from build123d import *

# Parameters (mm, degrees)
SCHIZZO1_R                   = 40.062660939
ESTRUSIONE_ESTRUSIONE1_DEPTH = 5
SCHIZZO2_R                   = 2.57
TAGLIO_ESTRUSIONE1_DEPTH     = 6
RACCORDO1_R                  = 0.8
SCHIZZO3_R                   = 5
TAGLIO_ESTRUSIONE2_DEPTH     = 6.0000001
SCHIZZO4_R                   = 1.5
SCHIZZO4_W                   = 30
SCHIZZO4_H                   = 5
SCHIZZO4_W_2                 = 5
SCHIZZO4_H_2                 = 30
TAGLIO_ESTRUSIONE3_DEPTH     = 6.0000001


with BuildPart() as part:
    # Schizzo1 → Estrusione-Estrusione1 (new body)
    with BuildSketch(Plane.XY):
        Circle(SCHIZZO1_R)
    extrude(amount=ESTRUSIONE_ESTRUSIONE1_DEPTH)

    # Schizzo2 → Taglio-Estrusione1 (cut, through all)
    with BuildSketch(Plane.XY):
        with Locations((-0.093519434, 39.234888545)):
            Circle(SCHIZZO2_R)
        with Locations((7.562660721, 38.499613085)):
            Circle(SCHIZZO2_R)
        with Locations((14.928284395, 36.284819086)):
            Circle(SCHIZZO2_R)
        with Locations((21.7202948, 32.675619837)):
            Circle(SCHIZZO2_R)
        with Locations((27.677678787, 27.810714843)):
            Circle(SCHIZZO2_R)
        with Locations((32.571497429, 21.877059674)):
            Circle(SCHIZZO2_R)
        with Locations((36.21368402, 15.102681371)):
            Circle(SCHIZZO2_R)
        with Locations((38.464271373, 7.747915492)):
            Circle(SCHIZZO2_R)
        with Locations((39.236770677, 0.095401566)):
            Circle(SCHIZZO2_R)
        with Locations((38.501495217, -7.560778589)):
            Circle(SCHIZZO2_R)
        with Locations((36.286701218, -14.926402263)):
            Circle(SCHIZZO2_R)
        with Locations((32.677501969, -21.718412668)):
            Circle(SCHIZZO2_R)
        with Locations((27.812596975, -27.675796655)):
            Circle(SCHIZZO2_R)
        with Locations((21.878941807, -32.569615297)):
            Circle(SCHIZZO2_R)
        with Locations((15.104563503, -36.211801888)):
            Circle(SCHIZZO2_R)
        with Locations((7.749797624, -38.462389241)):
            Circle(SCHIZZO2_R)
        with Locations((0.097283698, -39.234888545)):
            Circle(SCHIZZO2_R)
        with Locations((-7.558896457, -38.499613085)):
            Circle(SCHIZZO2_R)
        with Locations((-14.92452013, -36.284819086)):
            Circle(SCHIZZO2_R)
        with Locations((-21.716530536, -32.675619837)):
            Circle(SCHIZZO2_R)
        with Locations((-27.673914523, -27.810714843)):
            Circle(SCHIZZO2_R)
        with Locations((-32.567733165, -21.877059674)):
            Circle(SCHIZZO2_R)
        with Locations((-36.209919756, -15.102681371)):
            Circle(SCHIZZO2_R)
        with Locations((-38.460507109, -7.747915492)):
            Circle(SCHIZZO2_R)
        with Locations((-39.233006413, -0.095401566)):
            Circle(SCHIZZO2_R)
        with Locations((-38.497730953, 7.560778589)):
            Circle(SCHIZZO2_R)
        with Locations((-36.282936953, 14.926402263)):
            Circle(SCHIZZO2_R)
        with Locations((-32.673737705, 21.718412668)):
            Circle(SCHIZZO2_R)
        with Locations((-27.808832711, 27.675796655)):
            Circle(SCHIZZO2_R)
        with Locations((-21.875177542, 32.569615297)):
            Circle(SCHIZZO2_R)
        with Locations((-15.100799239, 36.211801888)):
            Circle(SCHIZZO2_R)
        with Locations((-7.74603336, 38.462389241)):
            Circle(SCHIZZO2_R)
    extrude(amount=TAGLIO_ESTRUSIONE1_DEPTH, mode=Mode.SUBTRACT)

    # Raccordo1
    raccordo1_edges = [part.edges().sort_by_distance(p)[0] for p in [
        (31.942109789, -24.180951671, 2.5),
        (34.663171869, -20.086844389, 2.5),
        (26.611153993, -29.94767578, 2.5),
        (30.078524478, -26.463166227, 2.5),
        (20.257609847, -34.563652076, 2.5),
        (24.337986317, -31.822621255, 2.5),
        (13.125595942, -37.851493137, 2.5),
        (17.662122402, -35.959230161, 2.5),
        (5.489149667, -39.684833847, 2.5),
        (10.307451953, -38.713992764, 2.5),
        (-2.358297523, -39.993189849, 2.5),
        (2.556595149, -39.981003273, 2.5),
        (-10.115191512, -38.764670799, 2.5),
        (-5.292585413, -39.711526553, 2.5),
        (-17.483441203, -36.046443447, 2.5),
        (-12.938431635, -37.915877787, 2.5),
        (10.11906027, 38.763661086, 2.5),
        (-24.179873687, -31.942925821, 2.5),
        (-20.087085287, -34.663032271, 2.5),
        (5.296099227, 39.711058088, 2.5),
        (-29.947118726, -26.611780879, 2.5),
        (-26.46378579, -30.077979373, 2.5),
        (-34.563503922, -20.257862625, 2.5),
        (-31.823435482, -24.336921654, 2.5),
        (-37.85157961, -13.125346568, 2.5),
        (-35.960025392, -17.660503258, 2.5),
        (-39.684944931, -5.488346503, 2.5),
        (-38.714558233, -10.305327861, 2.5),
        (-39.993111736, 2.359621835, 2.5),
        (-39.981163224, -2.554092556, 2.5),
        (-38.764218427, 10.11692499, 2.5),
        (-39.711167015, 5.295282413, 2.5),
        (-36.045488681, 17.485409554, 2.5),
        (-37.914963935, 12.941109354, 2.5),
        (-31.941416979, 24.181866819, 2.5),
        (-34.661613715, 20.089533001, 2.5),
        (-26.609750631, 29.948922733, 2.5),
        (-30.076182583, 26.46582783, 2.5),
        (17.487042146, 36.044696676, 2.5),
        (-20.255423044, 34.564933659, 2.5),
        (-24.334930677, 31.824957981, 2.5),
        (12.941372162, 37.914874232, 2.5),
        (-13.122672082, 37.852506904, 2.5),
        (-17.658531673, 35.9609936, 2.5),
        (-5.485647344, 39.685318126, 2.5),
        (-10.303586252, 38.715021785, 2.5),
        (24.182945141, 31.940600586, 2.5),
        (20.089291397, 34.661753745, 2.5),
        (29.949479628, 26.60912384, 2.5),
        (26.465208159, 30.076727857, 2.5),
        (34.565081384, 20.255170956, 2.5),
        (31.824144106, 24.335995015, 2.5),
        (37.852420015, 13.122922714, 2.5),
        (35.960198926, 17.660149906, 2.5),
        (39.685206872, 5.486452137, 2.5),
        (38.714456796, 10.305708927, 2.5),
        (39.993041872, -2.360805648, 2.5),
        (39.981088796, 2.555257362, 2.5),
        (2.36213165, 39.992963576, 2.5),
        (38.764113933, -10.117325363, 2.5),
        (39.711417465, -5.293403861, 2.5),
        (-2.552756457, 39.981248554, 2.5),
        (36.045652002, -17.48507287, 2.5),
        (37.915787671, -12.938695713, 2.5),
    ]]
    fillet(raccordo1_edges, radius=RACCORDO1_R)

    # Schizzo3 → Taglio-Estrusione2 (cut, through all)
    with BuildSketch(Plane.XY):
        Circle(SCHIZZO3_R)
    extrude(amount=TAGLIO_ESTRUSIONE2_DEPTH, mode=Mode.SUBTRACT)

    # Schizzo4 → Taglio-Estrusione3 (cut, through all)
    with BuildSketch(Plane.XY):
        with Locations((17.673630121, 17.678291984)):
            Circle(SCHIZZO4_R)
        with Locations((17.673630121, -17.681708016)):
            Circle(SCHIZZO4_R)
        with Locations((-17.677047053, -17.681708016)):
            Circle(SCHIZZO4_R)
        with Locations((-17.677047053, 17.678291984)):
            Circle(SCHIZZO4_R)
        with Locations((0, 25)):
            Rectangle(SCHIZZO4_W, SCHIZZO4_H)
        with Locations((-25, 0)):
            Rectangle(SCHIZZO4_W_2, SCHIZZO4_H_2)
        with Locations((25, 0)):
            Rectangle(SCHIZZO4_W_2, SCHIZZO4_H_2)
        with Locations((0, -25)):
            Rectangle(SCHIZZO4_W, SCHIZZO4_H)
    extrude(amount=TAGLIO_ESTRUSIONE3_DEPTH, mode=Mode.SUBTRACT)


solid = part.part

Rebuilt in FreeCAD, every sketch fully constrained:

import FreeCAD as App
import Part
import Sketcher

V = App.Vector
Q = App.Units.Quantity


def edges_at(feature, points):
    """Names of the edges that pass closest to the given points."""
    edges = feature.Shape.Edges
    near = lambda p: min(range(len(edges)), key=lambda i: edges[i].distToShape(Part.Vertex(*p))[0])
    return sorted({f"Edge{near(p) + 1}" for p in points})

doc = App.newDocument("Part")
params = doc.addObject("Spreadsheet::Sheet", "Params")
for row, (alias, value) in enumerate([
    ("pad1_length", "5 mm"),
    ("sketch2_diameter", "5.14 mm"),
    ("fillet_radius", "0.8 mm"),
    ("sketch3_diameter", "10 mm"),
    ("sketch4_diameter", "3 mm"),
    ("sketch4_width", "30 mm"),
    ("sketch4_width2", "5 mm"),
], start=1):
    params.set(f"A{row}", alias)
    params.set(f"B{row}", "=" + value)
    params.setAlias(f"B{row}", alias)

body = doc.addObject("PartDesign::Body", "Body")

# Sketch on XY plane
sketch1 = doc.addObject("Sketcher::SketchObject", "Sketch")
body.addObject(sketch1)
sketch1.AttachmentSupport = (doc.XY_Plane, [""])
sketch1.MapMode = "FlatFace"
sketch1.addGeometry(Part.Circle(V(0, 0, 0), V(0, 0, 1), 40.062661), False)
sketch1.addConstraint([
    Sketcher.Constraint("Coincident", 0, 3, -1, 1),
    Sketcher.Constraint("Diameter", 0, Q("80.125322 mm")),
])
pad1 = doc.addObject("PartDesign::Pad", "Pad")
body.addObject(pad1)
pad1.Profile = sketch1
pad1.setExpression("Length", "Params.pad1_length")

# Sketch on XY plane
sketch2 = doc.addObject("Sketcher::SketchObject", "Sketch001")
body.addObject(sketch2)
sketch2.AttachmentSupport = (doc.XY_Plane, [""])
sketch2.MapMode = "FlatFace"
sketch2.addGeometry([
    Part.Circle(V(-0.093519, 39.234889, 0), V(0, 0, 1), 2.57),  # 0
    Part.Circle(V(7.562661, 38.499613, 0), V(0, 0, 1), 2.57),  # 1
    Part.Circle(V(14.928284, 36.284819, 0), V(0, 0, 1), 2.57),  # 2
    Part.Circle(V(21.720295, 32.67562, 0), V(0, 0, 1), 2.57),  # 3
    Part.Circle(V(27.677679, 27.810715, 0), V(0, 0, 1), 2.57),  # 4
    Part.Circle(V(32.571497, 21.87706, 0), V(0, 0, 1), 2.57),  # 5
    Part.Circle(V(36.213684, 15.102681, 0), V(0, 0, 1), 2.57),  # 6
    Part.Circle(V(38.464271, 7.747915, 0), V(0, 0, 1), 2.57),  # 7
    Part.Circle(V(39.236771, 0.095402, 0), V(0, 0, 1), 2.57),  # 8
    Part.Circle(V(38.501495, -7.560779, 0), V(0, 0, 1), 2.57),  # 9
    Part.Circle(V(36.286701, -14.926402, 0), V(0, 0, 1), 2.57),  # 10
    Part.Circle(V(32.677502, -21.718413, 0), V(0, 0, 1), 2.57),  # 11
    Part.Circle(V(27.812597, -27.675797, 0), V(0, 0, 1), 2.57),  # 12
    Part.Circle(V(21.878942, -32.569615, 0), V(0, 0, 1), 2.57),  # 13
    Part.Circle(V(15.104564, -36.211802, 0), V(0, 0, 1), 2.57),  # 14
    Part.Circle(V(7.749798, -38.462389, 0), V(0, 0, 1), 2.57),  # 15
    Part.Circle(V(0.097284, -39.234889, 0), V(0, 0, 1), 2.57),  # 16
    Part.Circle(V(-7.558896, -38.499613, 0), V(0, 0, 1), 2.57),  # 17
    Part.Circle(V(-14.92452, -36.284819, 0), V(0, 0, 1), 2.57),  # 18
    Part.Circle(V(-21.716531, -32.67562, 0), V(0, 0, 1), 2.57),  # 19
    Part.Circle(V(-27.673915, -27.810715, 0), V(0, 0, 1), 2.57),  # 20
    Part.Circle(V(-32.567733, -21.87706, 0), V(0, 0, 1), 2.57),  # 21
    Part.Circle(V(-36.20992, -15.102681, 0), V(0, 0, 1), 2.57),  # 22
    Part.Circle(V(-38.460507, -7.747915, 0), V(0, 0, 1), 2.57),  # 23
    Part.Circle(V(-39.233006, -0.095402, 0), V(0, 0, 1), 2.57),  # 24
    Part.Circle(V(-38.497731, 7.560779, 0), V(0, 0, 1), 2.57),  # 25
    Part.Circle(V(-36.282937, 14.926402, 0), V(0, 0, 1), 2.57),  # 26
    Part.Circle(V(-32.673738, 21.718413, 0), V(0, 0, 1), 2.57),  # 27
    Part.Circle(V(-27.808833, 27.675797, 0), V(0, 0, 1), 2.57),  # 28
    Part.Circle(V(-21.875178, 32.569615, 0), V(0, 0, 1), 2.57),  # 29
    Part.Circle(V(-15.100799, 36.211802, 0), V(0, 0, 1), 2.57),  # 30
    Part.Circle(V(-7.746033, 38.462389, 0), V(0, 0, 1), 2.57),  # 31
], False)
sketch2.addConstraint([
    Sketcher.Constraint("Equal", 0, 1),
    Sketcher.Constraint("Equal", 1, 2),
    Sketcher.Constraint("Equal", 2, 3),
    Sketcher.Constraint("Equal", 3, 4),
    Sketcher.Constraint("Equal", 4, 5),
    Sketcher.Constraint("Equal", 5, 6),
    Sketcher.Constraint("Equal", 6, 7),
    Sketcher.Constraint("Equal", 7, 8),
    Sketcher.Constraint("Equal", 8, 9),
    Sketcher.Constraint("Equal", 9, 10),
    Sketcher.Constraint("Equal", 10, 11),
    Sketcher.Constraint("Equal", 11, 12),
    Sketcher.Constraint("Equal", 12, 13),
    Sketcher.Constraint("Equal", 13, 14),
    Sketcher.Constraint("Equal", 14, 15),
    Sketcher.Constraint("Equal", 15, 16),
    Sketcher.Constraint("Equal", 16, 17),
    Sketcher.Constraint("Equal", 17, 18),
    Sketcher.Constraint("Equal", 18, 19),
    Sketcher.Constraint("Equal", 19, 20),
    Sketcher.Constraint("Equal", 20, 21),
    Sketcher.Constraint("Equal", 21, 22),
    Sketcher.Constraint("Equal", 22, 23),
    Sketcher.Constraint("Equal", 23, 24),
    Sketcher.Constraint("Equal", 24, 25),
    Sketcher.Constraint("Equal", 25, 26),
    Sketcher.Constraint("Equal", 26, 27),
    Sketcher.Constraint("Equal", 27, 28),
    Sketcher.Constraint("Equal", 28, 29),
    Sketcher.Constraint("Equal", 29, 30),
    Sketcher.Constraint("Equal", 30, 31),
    Sketcher.Constraint("Diameter", 0, Q("5.14 mm")),
    Sketcher.Constraint("DistanceY", -1, 1, 8, 3, Q("0.095402 mm")),
    Sketcher.Constraint("DistanceX", -1, 1, 10, 3, Q("36.286701 mm")),
    Sketcher.Constraint("DistanceX", -1, 1, 11, 3, Q("32.677502 mm")),
    Sketcher.Constraint("DistanceY", 14, 3, -1, 1, Q("36.211802 mm")),
    Sketcher.Constraint("DistanceY", 24, 3, -1, 1, Q("0.095402 mm")),
    Sketcher.Constraint("DistanceX", 30, 3, -1, 1, Q("15.100799 mm")),
    Sketcher.Constraint("DistanceY", -1, 1, 30, 3, Q("36.211802 mm")),
    Sketcher.Constraint("DistanceY", 3, 3, 2, 3, Q("3.609199 mm")),
    Sketcher.Constraint("DistanceY", 4, 3, 1, 3, Q("10.688898 mm")),
    Sketcher.Constraint("DistanceX", 0, 3, 4, 3, Q("27.771198 mm")),
    Sketcher.Constraint("DistanceX", 2, 3, 6, 3, Q("21.2854 mm")),
    Sketcher.Constraint("DistanceY", 7, 3, 4, 3, Q("20.062799 mm")),
    Sketcher.Constraint("DistanceX", 7, 3, 8, 3, Q("0.772499 mm")),
    Sketcher.Constraint("DistanceX", 12, 3, 9, 3, Q("10.688898 mm")),
    Sketcher.Constraint("DistanceY", 12, 3, 8, 3, Q("27.771198 mm")),
    Sketcher.Constraint("DistanceY", 14, 3, 10, 3, Q("21.2854 mm")),
    Sketcher.Constraint("DistanceX", 15, 3, 12, 3, Q("20.062799 mm")),
    Sketcher.Constraint("DistanceY", 16, 3, 15, 3, Q("0.772499 mm")),
    Sketcher.Constraint("DistanceY", 18, 3, 19, 3, Q("3.609199 mm")),
    Sketcher.Constraint("DistanceY", 17, 3, 20, 3, Q("10.688898 mm")),
    Sketcher.Constraint("DistanceX", 20, 3, 16, 3, Q("27.771198 mm")),
    Sketcher.Constraint("DistanceX", 22, 3, 18, 3, Q("21.2854 mm")),
    Sketcher.Constraint("DistanceY", 20, 3, 23, 3, Q("20.062799 mm")),
    Sketcher.Constraint("DistanceX", 24, 3, 23, 3, Q("0.772499 mm")),
    Sketcher.Constraint("DistanceX", 26, 3, 27, 3, Q("3.609199 mm")),
    Sketcher.Constraint("DistanceX", 25, 3, 28, 3, Q("10.688898 mm")),
    Sketcher.Constraint("DistanceY", 24, 3, 28, 3, Q("27.771198 mm")),
    Sketcher.Constraint("DistanceY", 31, 3, 0, 3, Q("0.772499 mm")),
    Sketcher.Constraint("DistanceX", 28, 3, 31, 3, Q("20.062799 mm")),
    Sketcher.Constraint("DistanceX", 0, 3, -1, 1, Q("0.093519 mm")),
    Sketcher.Constraint("DistanceY", -1, 1, 0, 3, Q("39.234889 mm")),
    Sketcher.Constraint("DistanceX", -1, 1, 1, 3, Q("7.562661 mm")),
    Sketcher.Constraint("DistanceY", -1, 1, 2, 3, Q("36.284819 mm")),
    Sketcher.Constraint("DistanceY", -1, 1, 5, 3, Q("21.87706 mm")),
    Sketcher.Constraint("DistanceY", -1, 1, 6, 3, Q("15.102681 mm")),
    Sketcher.Constraint("DistanceX", -1, 1, 7, 3, Q("38.464271 mm")),
    Sketcher.Constraint("DistanceY", 9, 3, -1, 1, Q("7.560779 mm")),
    Sketcher.Constraint("DistanceX", -1, 1, 13, 3, Q("21.878942 mm")),
    Sketcher.Constraint("DistanceY", 15, 3, -1, 1, Q("38.462389 mm")),
    Sketcher.Constraint("DistanceX", 18, 3, -1, 1, Q("14.92452 mm")),
    Sketcher.Constraint("DistanceY", 18, 3, -1, 1, Q("36.284819 mm")),
    Sketcher.Constraint("DistanceX", 19, 3, -1, 1, Q("21.716531 mm")),
    Sketcher.Constraint("DistanceY", 21, 3, -1, 1, Q("21.87706 mm")),
    Sketcher.Constraint("DistanceY", 22, 3, -1, 1, Q("15.102681 mm")),
    Sketcher.Constraint("DistanceX", 25, 3, -1, 1, Q("38.497731 mm")),
    Sketcher.Constraint("DistanceY", -1, 1, 25, 3, Q("7.560779 mm")),
    Sketcher.Constraint("DistanceX", 2, 3, 3, 3, Q("6.79201 mm")),
    Sketcher.Constraint("DistanceX", 4, 3, 5, 3, Q("4.893819 mm")),
    Sketcher.Constraint("DistanceY", 6, 3, 1, 3, Q("23.396932 mm")),
    Sketcher.Constraint("DistanceX", 6, 3, 9, 3, Q("2.287811 mm")),
    Sketcher.Constraint("DistanceY", 11, 3, 10, 3, Q("6.79201 mm")),
    Sketcher.Constraint("DistanceY", 13, 3, 12, 3, Q("4.893819 mm")),
    Sketcher.Constraint("DistanceX", 14, 3, 13, 3, Q("6.774378 mm")),
    Sketcher.Constraint("DistanceX", 14, 3, 9, 3, Q("23.396932 mm")),
    Sketcher.Constraint("DistanceX", 16, 3, 14, 3, Q("15.00728 mm")),
    Sketcher.Constraint("DistanceX", 17, 3, 16, 3, Q("7.65618 mm")),
    Sketcher.Constraint("DistanceY", 17, 3, 14, 3, Q("2.287811 mm")),
    Sketcher.Constraint("DistanceX", 21, 3, 20, 3, Q("4.893819 mm")),
    Sketcher.Constraint("DistanceX", 24, 3, 20, 3, Q("11.559092 mm")),
    Sketcher.Constraint("DistanceX", 24, 3, 26, 3, Q("2.950069 mm")),
    Sketcher.Constraint("DistanceY", 21, 3, 26, 3, Q("36.803462 mm")),
    Sketcher.Constraint("DistanceY", 26, 3, 27, 3, Q("6.79201 mm")),
    Sketcher.Constraint("DistanceY", 28, 3, 29, 3, Q("4.893819 mm")),
    Sketcher.Constraint("DistanceX", 27, 3, 29, 3, Q("10.79856 mm")),
])
sketch2.setExpression("Constraints[31]", "Params.sketch2_diameter")
pocket1 = doc.addObject("PartDesign::Pocket", "Pocket")
body.addObject(pocket1)
pocket1.Profile = sketch2
pocket1.Type = "ThroughAll"
pocket1.Reversed = True
doc.recompute()

fillet = doc.addObject("PartDesign::Fillet", "Fillet")
body.addObject(fillet)
fillet.Base = (pocket1, edges_at(pocket1, [
    (31.942, -24.181, 2.5),
    (34.663, -20.087, 2.5),
    (26.611, -29.948, 2.5),
    (30.079, -26.463, 2.5),
    (20.258, -34.564, 2.5),
    (24.338, -31.823, 2.5),
    (13.126, -37.851, 2.5),
    (17.662, -35.959, 2.5),
    (5.489, -39.685, 2.5),
    (10.307, -38.714, 2.5),
    (-2.358, -39.993, 2.5),
    (2.557, -39.981, 2.5),
    (-10.115, -38.765, 2.5),
    (-5.293, -39.712, 2.5),
    (-17.483, -36.046, 2.5),
    (-12.938, -37.916, 2.5),
    (10.119, 38.764, 2.5),
    (-24.18, -31.943, 2.5),
    (-20.087, -34.663, 2.5),
    (5.296, 39.711, 2.5),
    (-29.947, -26.612, 2.5),
    (-26.464, -30.078, 2.5),
    (-34.564, -20.258, 2.5),
    (-31.823, -24.337, 2.5),
    (-37.852, -13.125, 2.5),
    (-35.96, -17.661, 2.5),
    (-39.685, -5.488, 2.5),
    (-38.715, -10.305, 2.5),
    (-39.993, 2.36, 2.5),
    (-39.981, -2.554, 2.5),
    (-38.764, 10.117, 2.5),
    (-39.711, 5.295, 2.5),
    (-36.045, 17.485, 2.5),
    (-37.915, 12.941, 2.5),
    (-31.941, 24.182, 2.5),
    (-34.662, 20.09, 2.5),
    (-26.61, 29.949, 2.5),
    (-30.076, 26.466, 2.5),
    (17.487, 36.045, 2.5),
    (-20.255, 34.565, 2.5),
    (-24.335, 31.825, 2.5),
    (12.941, 37.915, 2.5),
    (-13.123, 37.853, 2.5),
    (-17.659, 35.961, 2.5),
    (-5.486, 39.685, 2.5),
    (-10.304, 38.715, 2.5),
    (24.183, 31.941, 2.5),
    (20.089, 34.662, 2.5),
    (29.949, 26.609, 2.5),
    (26.465, 30.077, 2.5),
    (34.565, 20.255, 2.5),
    (31.824, 24.336, 2.5),
    (37.852, 13.123, 2.5),
    (35.96, 17.66, 2.5),
    (39.685, 5.486, 2.5),
    (38.714, 10.306, 2.5),
    (39.993, -2.361, 2.5),
    (39.981, 2.555, 2.5),
    (2.362, 39.993, 2.5),
    (38.764, -10.117, 2.5),
    (39.711, -5.293, 2.5),
    (-2.553, 39.981, 2.5),
    (36.046, -17.485, 2.5),
    (37.916, -12.939, 2.5),
]))
fillet.setExpression("Radius", "Params.fillet_radius")

# Sketch on XY plane
sketch3 = doc.addObject("Sketcher::SketchObject", "Sketch002")
body.addObject(sketch3)
sketch3.AttachmentSupport = (doc.XY_Plane, [""])
sketch3.MapMode = "FlatFace"
sketch3.addGeometry(Part.Circle(V(0, 0, 0), V(0, 0, 1), 5), False)
sketch3.addConstraint([
    Sketcher.Constraint("Coincident", 0, 3, -1, 1),
    Sketcher.Constraint("Diameter", 0, Q("10 mm")),
])
sketch3.setExpression("Constraints[1]", "Params.sketch3_diameter")
pocket2 = doc.addObject("PartDesign::Pocket", "Pocket001")
body.addObject(pocket2)
pocket2.Profile = sketch3
pocket2.Type = "ThroughAll"
pocket2.Reversed = True

# Sketch on XY plane
sketch4 = doc.addObject("Sketcher::SketchObject", "Sketch003")
body.addObject(sketch4)
sketch4.AttachmentSupport = (doc.XY_Plane, [""])
sketch4.MapMode = "FlatFace"
sketch4.addGeometry([
    Part.Circle(V(17.67363, 17.678292, 0), V(0, 0, 1), 1.5),  # 0
    Part.Circle(V(17.67363, -17.681708, 0), V(0, 0, 1), 1.5),  # 1
    Part.Circle(V(-17.677047, -17.681708, 0), V(0, 0, 1), 1.5),  # 2
    Part.Circle(V(-17.677047, 17.678292, 0), V(0, 0, 1), 1.5),  # 3
    Part.LineSegment(V(-15, 27.5, 0), V(-15, 22.5, 0)),  # 4
    Part.LineSegment(V(-15, 22.5, 0), V(15, 22.5, 0)),  # 5
    Part.LineSegment(V(15, 22.5, 0), V(15, 27.5, 0)),  # 6
    Part.LineSegment(V(15, 27.5, 0), V(-15, 27.5, 0)),  # 7
    Part.LineSegment(V(-27.5, 15, 0), V(-27.5, -15, 0)),  # 8
    Part.LineSegment(V(-27.5, -15, 0), V(-22.5, -15, 0)),  # 9
    Part.LineSegment(V(-22.5, -15, 0), V(-22.5, 15, 0)),  # 10
    Part.LineSegment(V(-22.5, 15, 0), V(-27.5, 15, 0)),  # 11
    Part.LineSegment(V(22.5, 15, 0), V(22.5, -15, 0)),  # 12
    Part.LineSegment(V(22.5, -15, 0), V(27.5, -15, 0)),  # 13
    Part.LineSegment(V(27.5, -15, 0), V(27.5, 15, 0)),  # 14
    Part.LineSegment(V(27.5, 15, 0), V(22.5, 15, 0)),  # 15
    Part.LineSegment(V(-15, -22.5, 0), V(-15, -27.5, 0)),  # 16
    Part.LineSegment(V(-15, -27.5, 0), V(15, -27.5, 0)),  # 17
    Part.LineSegment(V(15, -27.5, 0), V(15, -22.5, 0)),  # 18
    Part.LineSegment(V(15, -22.5, 0), V(-15, -22.5, 0)),  # 19
], False)
sketch4.addConstraint([
    Sketcher.Constraint("Coincident", 4, 2, 5, 1),
    Sketcher.Constraint("Coincident", 5, 2, 6, 1),
    Sketcher.Constraint("Coincident", 6, 2, 7, 1),
    Sketcher.Constraint("Coincident", 7, 2, 4, 1),
    Sketcher.Constraint("Coincident", 8, 2, 9, 1),
    Sketcher.Constraint("Coincident", 9, 2, 10, 1),
    Sketcher.Constraint("Coincident", 10, 2, 11, 1),
    Sketcher.Constraint("Coincident", 11, 2, 8, 1),
    Sketcher.Constraint("Coincident", 12, 2, 13, 1),
    Sketcher.Constraint("Coincident", 13, 2, 14, 1),
    Sketcher.Constraint("Coincident", 14, 2, 15, 1),
    Sketcher.Constraint("Coincident", 15, 2, 12, 1),
    Sketcher.Constraint("Coincident", 16, 2, 17, 1),
    Sketcher.Constraint("Coincident", 17, 2, 18, 1),
    Sketcher.Constraint("Coincident", 18, 2, 19, 1),
    Sketcher.Constraint("Coincident", 19, 2, 16, 1),
    Sketcher.Constraint("Vertical", 4),
    Sketcher.Constraint("Horizontal", 5),
    Sketcher.Constraint("Vertical", 6),
    Sketcher.Constraint("Horizontal", 7),
    Sketcher.Constraint("Vertical", 8),
    Sketcher.Constraint("Horizontal", 9),
    Sketcher.Constraint("Vertical", 10),
    Sketcher.Constraint("Horizontal", 11),
    Sketcher.Constraint("Vertical", 12),
    Sketcher.Constraint("Horizontal", 13),
    Sketcher.Constraint("Vertical", 14),
    Sketcher.Constraint("Horizontal", 15),
    Sketcher.Constraint("Vertical", 16),
    Sketcher.Constraint("Horizontal", 17),
    Sketcher.Constraint("Vertical", 18),
    Sketcher.Constraint("Horizontal", 19),
    Sketcher.Constraint("Equal", 0, 1),
    Sketcher.Constraint("Equal", 1, 2),
    Sketcher.Constraint("Equal", 2, 3),
    Sketcher.Constraint("Symmetric", 10, 2, 12, 2, -1, 1),
    Sketcher.Constraint("Symmetric", 8, 2, 14, 2, -1, 1),
    Sketcher.Constraint("Symmetric", 6, 2, 16, 2, -1, 1),
    Sketcher.Constraint("Symmetric", 4, 2, 18, 2, -1, 1),
    Sketcher.Constraint("Horizontal", 1, 3, 2, 3),
    Sketcher.Constraint("Horizontal", 0, 3, 3, 3),
    Sketcher.Constraint("Horizontal", 9, 2, 12, 2),
    Sketcher.Constraint("Vertical", 0, 3, 1, 3),
    Sketcher.Constraint("Vertical", 2, 3, 3, 3),
    Sketcher.Constraint("Vertical", 7, 2, 16, 2),
    Sketcher.Constraint("Equal", 15, 4),
    Sketcher.Constraint("Equal", 19, 8),
    Sketcher.Constraint("Diameter", 0, Q("3 mm")),
    Sketcher.Constraint("DistanceX", 5, 1, 5, 2, Q("30 mm")),
    Sketcher.Constraint("DistanceX", 9, 1, 9, 2, Q("5 mm")),
    Sketcher.Constraint("DistanceY", -1, 1, 4, 2, Q("22.5 mm")),
    Sketcher.Constraint("DistanceX", 8, 2, -1, 1, Q("27.5 mm")),
    Sketcher.Constraint("DistanceY", 1, 3, 0, 3, Q("35.36 mm")),
    Sketcher.Constraint("DistanceX", -1, 1, 0, 3, Q("17.67363 mm")),
    Sketcher.Constraint("DistanceY", -1, 1, 0, 3, Q("17.678292 mm")),
    Sketcher.Constraint("DistanceX", 2, 3, -1, 1, Q("17.677047 mm")),
])
sketch4.setExpression("Constraints[47]", "Params.sketch4_diameter")
sketch4.setExpression("Constraints[48]", "Params.sketch4_width")
sketch4.setExpression("Constraints[49]", "Params.sketch4_width2")
pocket3 = doc.addObject("PartDesign::Pocket", "Pocket002")
body.addObject(pocket3)
pocket3.Profile = sketch4
pocket3.Type = "ThroughAll"
pocket3.Reversed = True

doc.recompute()
